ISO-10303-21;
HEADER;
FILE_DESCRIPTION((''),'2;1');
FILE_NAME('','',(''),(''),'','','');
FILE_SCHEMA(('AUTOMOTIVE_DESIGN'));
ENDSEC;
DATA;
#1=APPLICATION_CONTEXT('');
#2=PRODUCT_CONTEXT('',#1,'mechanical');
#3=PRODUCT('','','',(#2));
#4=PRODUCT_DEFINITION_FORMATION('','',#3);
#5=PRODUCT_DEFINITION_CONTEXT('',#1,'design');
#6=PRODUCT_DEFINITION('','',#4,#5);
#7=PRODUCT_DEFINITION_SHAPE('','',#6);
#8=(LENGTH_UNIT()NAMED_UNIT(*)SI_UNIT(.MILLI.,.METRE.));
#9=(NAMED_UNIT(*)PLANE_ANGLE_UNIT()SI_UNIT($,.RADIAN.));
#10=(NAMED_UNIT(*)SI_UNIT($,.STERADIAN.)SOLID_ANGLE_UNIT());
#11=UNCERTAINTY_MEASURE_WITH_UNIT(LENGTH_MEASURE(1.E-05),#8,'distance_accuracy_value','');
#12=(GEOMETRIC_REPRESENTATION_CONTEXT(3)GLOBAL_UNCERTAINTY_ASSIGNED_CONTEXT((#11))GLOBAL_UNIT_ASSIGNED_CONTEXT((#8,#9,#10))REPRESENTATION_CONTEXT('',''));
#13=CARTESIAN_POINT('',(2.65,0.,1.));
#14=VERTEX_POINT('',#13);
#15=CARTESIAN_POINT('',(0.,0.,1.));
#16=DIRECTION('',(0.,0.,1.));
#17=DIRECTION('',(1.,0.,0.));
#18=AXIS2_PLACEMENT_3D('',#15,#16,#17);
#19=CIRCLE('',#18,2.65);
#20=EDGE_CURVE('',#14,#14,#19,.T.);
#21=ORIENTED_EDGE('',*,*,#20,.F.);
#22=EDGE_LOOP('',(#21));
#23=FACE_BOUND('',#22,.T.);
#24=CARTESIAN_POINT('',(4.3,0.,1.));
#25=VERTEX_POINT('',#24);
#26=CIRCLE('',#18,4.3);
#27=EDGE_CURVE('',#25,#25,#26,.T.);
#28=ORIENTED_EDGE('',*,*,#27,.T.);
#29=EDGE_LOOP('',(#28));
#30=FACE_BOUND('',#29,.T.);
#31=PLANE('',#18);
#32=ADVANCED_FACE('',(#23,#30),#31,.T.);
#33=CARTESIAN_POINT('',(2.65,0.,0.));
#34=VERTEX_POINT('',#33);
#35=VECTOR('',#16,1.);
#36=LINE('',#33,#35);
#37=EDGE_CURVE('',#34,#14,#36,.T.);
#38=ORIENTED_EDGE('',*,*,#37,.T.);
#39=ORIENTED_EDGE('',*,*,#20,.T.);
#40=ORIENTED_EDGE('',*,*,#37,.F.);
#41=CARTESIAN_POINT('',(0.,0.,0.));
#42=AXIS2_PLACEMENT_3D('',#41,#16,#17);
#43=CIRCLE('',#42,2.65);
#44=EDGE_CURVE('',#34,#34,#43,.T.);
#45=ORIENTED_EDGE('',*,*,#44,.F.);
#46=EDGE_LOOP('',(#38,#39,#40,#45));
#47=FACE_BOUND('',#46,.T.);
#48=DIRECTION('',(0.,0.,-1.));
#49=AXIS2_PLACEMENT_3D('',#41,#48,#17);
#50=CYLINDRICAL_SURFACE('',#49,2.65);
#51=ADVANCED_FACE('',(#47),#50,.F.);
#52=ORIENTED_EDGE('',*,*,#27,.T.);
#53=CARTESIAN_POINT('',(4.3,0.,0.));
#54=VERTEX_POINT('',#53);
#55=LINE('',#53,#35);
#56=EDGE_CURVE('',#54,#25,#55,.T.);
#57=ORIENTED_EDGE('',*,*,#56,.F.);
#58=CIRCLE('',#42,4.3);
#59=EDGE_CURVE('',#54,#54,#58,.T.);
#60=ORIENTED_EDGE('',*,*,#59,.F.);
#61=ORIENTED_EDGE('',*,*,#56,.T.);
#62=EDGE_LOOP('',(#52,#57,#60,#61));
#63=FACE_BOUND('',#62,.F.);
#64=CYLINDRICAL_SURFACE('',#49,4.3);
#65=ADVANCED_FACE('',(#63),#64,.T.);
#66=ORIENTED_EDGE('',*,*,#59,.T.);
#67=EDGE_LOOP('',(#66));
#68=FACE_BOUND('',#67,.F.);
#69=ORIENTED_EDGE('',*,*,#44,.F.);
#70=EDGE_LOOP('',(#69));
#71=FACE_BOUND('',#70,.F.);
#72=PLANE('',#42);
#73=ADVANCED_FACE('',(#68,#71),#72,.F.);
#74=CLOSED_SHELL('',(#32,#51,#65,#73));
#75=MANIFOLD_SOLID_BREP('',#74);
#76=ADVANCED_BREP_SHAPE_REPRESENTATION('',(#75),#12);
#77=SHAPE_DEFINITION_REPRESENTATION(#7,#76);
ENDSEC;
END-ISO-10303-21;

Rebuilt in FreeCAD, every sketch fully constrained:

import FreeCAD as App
import Part
import Sketcher

V = App.Vector
Q = App.Units.Quantity

doc = App.newDocument("Part")
body = doc.addObject("PartDesign::Body", "Body")

sketch1 = body.newObject("Sketcher::SketchObject", "Sketch")
sketch1.AttachmentSupport = (doc.getObject("XY_Plane"), [""])
sketch1.MapMode = "FlatFace"
sketch1.addGeometry([
    Part.Circle(V(0, 0, 0), V(0, 0, 1), 4.3),
    Part.Circle(V(0, 0, 0), V(0, 0, 1), 2.6),
], False)
sketch1.addConstraint([
    Sketcher.Constraint("Coincident", 0, 3, -1, 1),
    Sketcher.Constraint("Coincident", 1, 3, -1, 1),
    Sketcher.Constraint("Diameter", 0, Q("8.6 mm")),
    Sketcher.Constraint("Diameter", 1, Q("5.3 mm")),
])
pad1 = body.newObject("PartDesign::Pad", "Pad")
pad1.Profile = sketch1
pad1.Length = 1

doc.recompute()
